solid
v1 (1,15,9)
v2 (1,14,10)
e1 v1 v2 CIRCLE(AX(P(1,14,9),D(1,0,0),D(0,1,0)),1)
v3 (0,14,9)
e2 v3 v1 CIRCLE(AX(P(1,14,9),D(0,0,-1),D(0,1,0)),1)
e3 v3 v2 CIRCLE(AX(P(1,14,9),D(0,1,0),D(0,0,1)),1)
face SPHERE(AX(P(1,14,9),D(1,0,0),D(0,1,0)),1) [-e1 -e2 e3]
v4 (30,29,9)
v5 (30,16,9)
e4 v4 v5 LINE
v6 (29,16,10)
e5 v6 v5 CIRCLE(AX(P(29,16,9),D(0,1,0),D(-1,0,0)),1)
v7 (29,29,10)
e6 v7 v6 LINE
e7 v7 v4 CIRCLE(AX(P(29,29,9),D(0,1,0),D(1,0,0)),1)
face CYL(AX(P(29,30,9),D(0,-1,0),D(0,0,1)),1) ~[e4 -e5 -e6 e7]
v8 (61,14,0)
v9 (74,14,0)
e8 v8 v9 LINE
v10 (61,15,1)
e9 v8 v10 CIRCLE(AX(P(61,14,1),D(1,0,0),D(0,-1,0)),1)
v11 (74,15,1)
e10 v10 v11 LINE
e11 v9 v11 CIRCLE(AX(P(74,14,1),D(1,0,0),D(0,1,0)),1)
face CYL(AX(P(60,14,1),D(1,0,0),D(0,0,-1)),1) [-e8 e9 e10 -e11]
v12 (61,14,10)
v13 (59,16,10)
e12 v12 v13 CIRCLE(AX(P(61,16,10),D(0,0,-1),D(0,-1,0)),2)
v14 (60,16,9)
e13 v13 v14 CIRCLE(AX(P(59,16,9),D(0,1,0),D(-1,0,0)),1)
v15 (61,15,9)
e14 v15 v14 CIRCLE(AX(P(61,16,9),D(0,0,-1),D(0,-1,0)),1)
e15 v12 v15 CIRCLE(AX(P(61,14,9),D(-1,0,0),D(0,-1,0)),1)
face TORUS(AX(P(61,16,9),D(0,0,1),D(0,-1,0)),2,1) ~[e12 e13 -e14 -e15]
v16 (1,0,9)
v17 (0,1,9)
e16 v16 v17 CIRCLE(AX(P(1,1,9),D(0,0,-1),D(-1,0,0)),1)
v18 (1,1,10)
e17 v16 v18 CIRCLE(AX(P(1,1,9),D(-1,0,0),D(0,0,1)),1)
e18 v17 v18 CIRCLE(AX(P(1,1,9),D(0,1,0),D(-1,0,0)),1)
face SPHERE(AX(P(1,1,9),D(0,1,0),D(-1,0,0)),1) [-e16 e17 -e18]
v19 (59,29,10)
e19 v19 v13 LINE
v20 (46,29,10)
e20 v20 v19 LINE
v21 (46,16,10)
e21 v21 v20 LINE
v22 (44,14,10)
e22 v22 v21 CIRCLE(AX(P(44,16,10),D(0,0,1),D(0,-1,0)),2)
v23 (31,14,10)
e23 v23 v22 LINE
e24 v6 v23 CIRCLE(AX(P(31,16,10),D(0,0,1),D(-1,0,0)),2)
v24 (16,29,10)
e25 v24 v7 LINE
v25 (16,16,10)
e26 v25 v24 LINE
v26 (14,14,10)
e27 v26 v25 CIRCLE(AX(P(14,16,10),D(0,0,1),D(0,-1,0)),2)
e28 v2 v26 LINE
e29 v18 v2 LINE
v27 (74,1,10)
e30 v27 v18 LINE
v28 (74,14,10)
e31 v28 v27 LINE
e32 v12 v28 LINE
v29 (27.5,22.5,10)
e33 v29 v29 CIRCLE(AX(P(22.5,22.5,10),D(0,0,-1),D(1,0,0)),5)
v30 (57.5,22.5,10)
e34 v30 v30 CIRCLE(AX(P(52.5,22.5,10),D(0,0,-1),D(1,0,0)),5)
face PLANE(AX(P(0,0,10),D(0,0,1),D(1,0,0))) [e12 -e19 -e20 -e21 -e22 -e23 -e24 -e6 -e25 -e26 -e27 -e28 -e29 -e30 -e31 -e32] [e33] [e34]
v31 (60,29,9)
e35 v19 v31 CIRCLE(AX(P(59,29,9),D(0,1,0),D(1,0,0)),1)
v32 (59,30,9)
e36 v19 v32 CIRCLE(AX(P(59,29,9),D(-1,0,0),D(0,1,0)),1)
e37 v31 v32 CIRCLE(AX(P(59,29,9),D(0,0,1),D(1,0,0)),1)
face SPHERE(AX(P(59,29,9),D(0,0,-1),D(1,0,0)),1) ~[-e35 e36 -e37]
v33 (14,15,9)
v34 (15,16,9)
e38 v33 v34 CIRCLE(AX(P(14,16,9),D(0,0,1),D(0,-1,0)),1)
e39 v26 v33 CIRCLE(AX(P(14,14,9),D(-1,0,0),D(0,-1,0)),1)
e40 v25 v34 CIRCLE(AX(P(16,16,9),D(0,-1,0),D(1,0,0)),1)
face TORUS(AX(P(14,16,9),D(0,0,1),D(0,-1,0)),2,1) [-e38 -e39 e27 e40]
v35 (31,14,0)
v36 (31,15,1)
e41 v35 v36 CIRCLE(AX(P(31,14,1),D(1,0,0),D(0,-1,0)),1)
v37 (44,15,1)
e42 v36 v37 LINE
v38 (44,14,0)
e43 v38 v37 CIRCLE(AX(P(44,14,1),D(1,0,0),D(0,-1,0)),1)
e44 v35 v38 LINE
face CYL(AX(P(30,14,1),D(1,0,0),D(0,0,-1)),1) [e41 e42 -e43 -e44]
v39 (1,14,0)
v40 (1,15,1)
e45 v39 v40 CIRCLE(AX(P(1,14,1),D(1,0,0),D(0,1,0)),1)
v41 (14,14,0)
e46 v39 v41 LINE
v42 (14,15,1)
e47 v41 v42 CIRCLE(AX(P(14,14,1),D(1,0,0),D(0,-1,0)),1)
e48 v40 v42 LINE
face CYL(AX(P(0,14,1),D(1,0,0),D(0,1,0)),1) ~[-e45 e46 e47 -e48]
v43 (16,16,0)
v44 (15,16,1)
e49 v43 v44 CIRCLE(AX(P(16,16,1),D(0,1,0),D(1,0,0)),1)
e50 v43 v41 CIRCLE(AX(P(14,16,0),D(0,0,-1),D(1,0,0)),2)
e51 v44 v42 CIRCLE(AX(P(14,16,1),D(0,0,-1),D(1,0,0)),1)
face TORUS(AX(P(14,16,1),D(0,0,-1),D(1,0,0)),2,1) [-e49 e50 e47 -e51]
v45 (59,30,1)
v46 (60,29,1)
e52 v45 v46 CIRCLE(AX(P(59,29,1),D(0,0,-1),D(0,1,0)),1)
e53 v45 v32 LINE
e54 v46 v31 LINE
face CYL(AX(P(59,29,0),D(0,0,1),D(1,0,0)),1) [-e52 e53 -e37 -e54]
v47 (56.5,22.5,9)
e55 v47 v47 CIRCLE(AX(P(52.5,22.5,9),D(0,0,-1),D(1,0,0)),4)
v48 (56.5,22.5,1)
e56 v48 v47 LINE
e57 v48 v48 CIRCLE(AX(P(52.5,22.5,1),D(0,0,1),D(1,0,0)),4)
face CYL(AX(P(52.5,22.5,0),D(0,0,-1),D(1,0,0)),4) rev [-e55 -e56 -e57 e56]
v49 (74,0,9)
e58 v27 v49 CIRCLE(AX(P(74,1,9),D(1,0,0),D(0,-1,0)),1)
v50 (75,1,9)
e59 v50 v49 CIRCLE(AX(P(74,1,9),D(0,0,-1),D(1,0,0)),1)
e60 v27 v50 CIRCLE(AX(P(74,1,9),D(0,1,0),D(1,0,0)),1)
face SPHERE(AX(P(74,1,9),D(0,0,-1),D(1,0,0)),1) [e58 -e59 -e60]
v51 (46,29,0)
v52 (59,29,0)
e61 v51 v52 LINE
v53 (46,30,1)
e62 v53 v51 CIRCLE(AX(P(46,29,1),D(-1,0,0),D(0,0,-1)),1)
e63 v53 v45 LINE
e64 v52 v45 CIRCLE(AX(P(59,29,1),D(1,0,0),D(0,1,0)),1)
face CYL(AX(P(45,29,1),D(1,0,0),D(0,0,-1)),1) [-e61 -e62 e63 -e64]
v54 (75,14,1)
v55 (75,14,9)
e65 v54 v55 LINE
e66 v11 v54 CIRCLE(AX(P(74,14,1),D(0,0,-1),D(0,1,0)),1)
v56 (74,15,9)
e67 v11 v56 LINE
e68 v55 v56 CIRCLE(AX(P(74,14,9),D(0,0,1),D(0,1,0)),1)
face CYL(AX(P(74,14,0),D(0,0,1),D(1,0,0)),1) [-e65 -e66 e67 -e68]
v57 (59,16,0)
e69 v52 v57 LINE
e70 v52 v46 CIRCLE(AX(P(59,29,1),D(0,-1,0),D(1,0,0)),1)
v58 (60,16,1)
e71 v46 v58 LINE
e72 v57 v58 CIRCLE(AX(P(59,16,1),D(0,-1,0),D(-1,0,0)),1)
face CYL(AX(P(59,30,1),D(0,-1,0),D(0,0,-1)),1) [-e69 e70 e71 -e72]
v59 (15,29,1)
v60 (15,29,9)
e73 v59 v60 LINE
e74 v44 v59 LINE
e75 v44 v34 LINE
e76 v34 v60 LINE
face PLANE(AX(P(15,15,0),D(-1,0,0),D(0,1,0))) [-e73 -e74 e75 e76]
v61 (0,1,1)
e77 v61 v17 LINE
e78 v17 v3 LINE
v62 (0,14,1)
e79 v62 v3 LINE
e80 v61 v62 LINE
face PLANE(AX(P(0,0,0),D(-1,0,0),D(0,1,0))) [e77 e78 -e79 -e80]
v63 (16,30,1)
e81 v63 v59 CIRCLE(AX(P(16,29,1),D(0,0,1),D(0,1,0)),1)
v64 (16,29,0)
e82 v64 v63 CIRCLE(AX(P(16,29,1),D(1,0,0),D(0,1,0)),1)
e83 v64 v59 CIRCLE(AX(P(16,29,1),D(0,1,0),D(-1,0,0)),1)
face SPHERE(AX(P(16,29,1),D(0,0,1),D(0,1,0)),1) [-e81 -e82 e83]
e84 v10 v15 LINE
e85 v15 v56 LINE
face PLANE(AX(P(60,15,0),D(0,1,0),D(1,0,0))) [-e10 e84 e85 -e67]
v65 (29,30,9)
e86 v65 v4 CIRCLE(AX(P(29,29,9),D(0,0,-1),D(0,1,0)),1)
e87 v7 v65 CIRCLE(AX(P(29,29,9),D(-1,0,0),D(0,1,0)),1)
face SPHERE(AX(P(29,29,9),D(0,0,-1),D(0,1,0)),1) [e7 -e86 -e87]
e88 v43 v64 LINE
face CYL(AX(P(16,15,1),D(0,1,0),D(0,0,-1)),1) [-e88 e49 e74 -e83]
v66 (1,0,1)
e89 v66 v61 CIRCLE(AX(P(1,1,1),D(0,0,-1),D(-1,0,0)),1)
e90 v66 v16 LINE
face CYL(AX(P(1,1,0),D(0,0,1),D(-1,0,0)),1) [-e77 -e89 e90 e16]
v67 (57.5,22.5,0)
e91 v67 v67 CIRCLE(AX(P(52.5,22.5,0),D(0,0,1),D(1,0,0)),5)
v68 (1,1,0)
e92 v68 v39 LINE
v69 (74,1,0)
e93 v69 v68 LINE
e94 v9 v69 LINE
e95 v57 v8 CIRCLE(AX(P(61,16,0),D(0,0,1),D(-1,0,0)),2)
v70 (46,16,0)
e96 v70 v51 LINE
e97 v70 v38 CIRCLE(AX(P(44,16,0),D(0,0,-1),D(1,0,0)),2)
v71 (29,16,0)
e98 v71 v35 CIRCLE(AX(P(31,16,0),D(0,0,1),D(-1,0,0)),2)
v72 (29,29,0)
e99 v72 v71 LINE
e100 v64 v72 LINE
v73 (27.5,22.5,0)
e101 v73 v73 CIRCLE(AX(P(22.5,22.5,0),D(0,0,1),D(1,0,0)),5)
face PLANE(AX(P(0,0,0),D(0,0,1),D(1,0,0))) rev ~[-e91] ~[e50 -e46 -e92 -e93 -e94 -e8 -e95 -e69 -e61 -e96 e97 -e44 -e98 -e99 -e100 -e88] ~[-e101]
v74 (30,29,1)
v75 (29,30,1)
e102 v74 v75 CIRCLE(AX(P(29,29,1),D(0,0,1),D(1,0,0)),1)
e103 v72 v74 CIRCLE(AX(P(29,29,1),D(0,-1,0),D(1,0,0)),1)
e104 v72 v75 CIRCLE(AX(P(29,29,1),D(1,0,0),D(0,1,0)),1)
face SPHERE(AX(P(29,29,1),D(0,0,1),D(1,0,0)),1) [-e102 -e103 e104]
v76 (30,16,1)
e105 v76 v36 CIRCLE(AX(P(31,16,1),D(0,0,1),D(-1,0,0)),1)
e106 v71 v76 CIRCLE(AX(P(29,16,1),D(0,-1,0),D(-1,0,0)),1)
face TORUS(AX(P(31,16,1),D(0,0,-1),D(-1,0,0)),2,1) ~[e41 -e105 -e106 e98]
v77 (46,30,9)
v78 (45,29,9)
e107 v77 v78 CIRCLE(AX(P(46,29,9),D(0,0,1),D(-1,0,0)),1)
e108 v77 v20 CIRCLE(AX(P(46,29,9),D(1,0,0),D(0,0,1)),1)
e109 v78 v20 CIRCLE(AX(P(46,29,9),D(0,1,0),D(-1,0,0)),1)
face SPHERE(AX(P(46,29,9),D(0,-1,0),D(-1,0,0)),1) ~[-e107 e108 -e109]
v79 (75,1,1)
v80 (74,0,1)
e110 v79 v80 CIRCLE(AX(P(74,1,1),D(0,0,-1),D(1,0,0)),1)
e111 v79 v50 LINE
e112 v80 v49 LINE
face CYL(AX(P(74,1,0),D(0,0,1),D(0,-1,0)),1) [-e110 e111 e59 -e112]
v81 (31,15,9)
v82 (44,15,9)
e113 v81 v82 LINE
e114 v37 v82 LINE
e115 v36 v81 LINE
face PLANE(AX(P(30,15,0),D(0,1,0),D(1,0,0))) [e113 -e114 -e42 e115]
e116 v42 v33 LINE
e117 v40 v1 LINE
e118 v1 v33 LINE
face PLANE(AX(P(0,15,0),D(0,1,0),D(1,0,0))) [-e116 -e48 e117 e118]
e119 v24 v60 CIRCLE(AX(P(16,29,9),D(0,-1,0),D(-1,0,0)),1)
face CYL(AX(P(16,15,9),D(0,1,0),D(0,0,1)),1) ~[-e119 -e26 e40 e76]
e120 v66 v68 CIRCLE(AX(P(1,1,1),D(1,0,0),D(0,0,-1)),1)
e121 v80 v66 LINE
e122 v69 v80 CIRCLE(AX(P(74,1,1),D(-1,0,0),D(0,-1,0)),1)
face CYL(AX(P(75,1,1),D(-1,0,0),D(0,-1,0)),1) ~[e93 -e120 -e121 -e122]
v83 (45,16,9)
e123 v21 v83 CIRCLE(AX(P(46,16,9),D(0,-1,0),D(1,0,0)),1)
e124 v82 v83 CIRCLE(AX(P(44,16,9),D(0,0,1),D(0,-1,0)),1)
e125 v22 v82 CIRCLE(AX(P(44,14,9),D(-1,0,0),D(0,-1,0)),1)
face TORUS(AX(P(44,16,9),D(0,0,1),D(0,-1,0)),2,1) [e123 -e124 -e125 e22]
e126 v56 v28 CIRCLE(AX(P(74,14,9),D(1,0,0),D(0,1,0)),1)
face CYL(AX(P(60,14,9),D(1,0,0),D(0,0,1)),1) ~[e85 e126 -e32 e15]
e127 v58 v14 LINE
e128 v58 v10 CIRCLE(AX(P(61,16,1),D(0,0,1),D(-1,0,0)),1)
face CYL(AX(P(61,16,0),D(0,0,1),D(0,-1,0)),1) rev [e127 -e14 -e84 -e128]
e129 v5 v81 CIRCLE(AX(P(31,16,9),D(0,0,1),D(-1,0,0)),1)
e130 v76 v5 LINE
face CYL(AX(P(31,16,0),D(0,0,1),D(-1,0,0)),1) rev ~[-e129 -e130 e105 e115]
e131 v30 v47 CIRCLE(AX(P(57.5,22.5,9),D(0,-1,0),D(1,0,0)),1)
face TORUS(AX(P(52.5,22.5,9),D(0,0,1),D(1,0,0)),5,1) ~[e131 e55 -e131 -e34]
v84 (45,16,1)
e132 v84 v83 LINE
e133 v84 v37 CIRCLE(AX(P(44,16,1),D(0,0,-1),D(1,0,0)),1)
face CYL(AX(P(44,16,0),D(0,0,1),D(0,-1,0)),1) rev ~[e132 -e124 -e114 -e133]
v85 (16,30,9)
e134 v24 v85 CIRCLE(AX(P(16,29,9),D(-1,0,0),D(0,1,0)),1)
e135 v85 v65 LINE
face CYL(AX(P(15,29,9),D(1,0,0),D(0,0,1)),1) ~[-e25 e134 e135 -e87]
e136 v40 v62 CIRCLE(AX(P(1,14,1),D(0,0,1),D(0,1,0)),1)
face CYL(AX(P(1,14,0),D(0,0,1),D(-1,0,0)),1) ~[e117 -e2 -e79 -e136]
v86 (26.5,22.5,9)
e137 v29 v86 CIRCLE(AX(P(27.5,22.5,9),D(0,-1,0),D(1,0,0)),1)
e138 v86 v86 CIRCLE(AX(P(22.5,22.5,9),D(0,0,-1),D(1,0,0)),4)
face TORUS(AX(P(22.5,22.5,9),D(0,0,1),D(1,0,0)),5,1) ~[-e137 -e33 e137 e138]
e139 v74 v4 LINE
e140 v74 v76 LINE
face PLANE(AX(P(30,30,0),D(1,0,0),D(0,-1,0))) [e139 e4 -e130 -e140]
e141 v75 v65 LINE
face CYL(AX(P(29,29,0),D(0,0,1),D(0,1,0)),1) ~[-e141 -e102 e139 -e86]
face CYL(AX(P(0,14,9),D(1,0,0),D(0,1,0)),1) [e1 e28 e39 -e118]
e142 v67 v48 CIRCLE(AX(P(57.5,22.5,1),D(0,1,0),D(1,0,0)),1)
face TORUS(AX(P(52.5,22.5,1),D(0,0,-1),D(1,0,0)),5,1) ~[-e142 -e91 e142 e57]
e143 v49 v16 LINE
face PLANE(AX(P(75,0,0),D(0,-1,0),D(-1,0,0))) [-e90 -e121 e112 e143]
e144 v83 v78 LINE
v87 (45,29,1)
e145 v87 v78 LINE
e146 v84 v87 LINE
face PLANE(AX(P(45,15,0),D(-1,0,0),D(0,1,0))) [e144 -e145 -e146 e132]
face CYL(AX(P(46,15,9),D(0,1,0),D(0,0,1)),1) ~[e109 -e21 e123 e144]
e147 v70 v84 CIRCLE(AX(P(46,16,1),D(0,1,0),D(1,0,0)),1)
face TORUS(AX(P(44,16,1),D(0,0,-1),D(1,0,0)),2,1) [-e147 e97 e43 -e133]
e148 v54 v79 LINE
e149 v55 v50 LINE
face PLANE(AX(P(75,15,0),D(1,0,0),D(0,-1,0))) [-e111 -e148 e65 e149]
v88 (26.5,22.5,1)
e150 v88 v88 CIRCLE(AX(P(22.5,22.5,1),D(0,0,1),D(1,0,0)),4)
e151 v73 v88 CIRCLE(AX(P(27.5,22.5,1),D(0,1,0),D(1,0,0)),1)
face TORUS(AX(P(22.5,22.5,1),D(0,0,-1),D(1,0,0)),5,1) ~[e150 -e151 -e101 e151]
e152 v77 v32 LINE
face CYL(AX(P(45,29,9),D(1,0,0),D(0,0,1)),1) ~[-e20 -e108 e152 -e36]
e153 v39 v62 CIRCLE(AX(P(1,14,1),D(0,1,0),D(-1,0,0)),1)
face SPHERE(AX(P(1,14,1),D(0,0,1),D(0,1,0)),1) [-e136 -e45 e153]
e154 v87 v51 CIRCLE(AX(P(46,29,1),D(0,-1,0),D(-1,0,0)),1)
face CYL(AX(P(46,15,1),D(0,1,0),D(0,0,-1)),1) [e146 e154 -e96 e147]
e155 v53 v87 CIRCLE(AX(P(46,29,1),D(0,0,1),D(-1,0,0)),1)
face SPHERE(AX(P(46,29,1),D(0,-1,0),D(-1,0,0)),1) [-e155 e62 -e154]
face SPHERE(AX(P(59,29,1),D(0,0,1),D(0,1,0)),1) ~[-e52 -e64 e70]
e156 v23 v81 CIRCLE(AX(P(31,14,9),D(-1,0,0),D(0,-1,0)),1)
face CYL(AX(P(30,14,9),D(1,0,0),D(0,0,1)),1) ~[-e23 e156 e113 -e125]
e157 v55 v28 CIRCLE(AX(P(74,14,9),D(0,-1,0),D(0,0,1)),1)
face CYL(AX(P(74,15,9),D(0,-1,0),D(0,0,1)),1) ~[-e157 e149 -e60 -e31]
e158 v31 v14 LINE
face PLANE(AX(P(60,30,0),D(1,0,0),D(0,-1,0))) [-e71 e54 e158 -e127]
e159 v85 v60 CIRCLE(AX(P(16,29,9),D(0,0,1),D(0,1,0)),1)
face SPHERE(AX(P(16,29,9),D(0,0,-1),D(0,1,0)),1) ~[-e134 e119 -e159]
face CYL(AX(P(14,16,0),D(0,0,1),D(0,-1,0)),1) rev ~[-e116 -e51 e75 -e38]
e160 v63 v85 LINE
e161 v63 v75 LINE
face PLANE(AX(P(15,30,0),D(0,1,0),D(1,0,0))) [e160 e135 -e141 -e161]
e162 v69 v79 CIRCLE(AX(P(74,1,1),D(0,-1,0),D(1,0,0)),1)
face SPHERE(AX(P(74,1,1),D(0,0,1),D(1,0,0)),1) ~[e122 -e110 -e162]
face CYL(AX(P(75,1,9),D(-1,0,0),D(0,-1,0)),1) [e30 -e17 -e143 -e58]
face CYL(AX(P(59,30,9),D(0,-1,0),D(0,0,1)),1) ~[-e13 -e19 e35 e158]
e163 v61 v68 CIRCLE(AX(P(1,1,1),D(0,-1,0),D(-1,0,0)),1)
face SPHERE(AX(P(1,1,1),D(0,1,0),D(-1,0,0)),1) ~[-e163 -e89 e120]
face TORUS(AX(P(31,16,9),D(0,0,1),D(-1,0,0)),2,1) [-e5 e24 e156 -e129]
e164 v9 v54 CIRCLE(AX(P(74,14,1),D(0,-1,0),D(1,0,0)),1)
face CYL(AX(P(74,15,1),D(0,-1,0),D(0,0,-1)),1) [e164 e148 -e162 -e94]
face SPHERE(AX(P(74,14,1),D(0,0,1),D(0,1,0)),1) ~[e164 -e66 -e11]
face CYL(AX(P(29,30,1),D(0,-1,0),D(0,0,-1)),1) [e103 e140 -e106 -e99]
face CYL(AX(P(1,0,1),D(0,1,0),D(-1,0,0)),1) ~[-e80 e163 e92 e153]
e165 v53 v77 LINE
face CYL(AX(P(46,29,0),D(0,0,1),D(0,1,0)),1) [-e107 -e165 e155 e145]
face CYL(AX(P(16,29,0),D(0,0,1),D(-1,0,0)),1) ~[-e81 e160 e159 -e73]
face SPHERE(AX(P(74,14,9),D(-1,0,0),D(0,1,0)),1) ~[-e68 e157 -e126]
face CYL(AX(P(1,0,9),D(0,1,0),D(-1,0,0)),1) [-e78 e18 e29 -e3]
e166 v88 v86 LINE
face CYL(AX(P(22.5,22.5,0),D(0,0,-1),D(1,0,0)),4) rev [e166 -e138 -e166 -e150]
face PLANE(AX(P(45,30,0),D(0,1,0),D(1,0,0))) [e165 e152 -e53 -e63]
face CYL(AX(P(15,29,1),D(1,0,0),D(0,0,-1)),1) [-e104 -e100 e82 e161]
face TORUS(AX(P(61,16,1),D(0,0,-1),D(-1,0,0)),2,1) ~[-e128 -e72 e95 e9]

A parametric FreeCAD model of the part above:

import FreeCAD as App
import Part
import Sketcher

V = App.Vector
Q = App.Units.Quantity

doc = App.newDocument("Part")
body = doc.addObject("PartDesign::Body", "Body")

# Sketch on XY plane
sketch1 = body.newObject("Sketcher::SketchObject", "Sketch")
sketch1.AttachmentSupport = (doc.getObject("XY_Plane"), [""])
sketch1.MapMode = "FlatFace"
sketch1.addGeometry(Part.LineSegment(V(0, 15, 0), V(0, 0, 0)), False)
sketch1.addGeometry(Part.LineSegment(V(0, 0, 0), V(75, 0, 0)), False)
sketch1.addGeometry(Part.LineSegment(V(75, 0, 0), V(75, 15, 0)), False)
sketch1.addGeometry(Part.LineSegment(V(75, 15, 0), V(60, 15, 0)), False)
sketch1.addGeometry(Part.LineSegment(V(60, 15, 0), V(60, 30, 0)), False)
sketch1.addGeometry(Part.LineSegment(V(60, 30, 0), V(45, 30, 0)), False)
sketch1.addGeometry(Part.LineSegment(V(45, 30, 0), V(45, 15, 0)), False)
sketch1.addGeometry(Part.LineSegment(V(45, 15, 0), V(30, 15, 0)), False)
sketch1.addGeometry(Part.LineSegment(V(30, 15, 0), V(30, 30, 0)), False)
sketch1.addGeometry(Part.LineSegment(V(30, 30, 0), V(15, 30, 0)), False)
sketch1.addGeometry(Part.LineSegment(V(15, 30, 0), V(15, 15, 0)), False)
sketch1.addGeometry(Part.LineSegment(V(15, 15, 0), V(0, 15, 0)), False)
sketch1.addConstraint(Sketcher.Constraint("Coincident", 0, 2, 1, 1))
sketch1.addConstraint(Sketcher.Constraint("Coincident", 1, 2, 2, 1))
sketch1.addConstraint(Sketcher.Constraint("Coincident", 2, 2, 3, 1))
sketch1.addConstraint(Sketcher.Constraint("Coincident", 3, 2, 4, 1))
sketch1.addConstraint(Sketcher.Constraint("Coincident", 4, 2, 5, 1))
sketch1.addConstraint(Sketcher.Constraint("Coincident", 5, 2, 6, 1))
sketch1.addConstraint(Sketcher.Constraint("Coincident", 6, 2, 7, 1))
sketch1.addConstraint(Sketcher.Constraint("Coincident", 7, 2, 8, 1))
sketch1.addConstraint(Sketcher.Constraint("Coincident", 8, 2, 9, 1))
sketch1.addConstraint(Sketcher.Constraint("Coincident", 9, 2, 10, 1))
sketch1.addConstraint(Sketcher.Constraint("Coincident", 10, 2, 11, 1))
sketch1.addConstraint(Sketcher.Constraint("Coincident", 11, 2, 0, 1))
sketch1.addConstraint(Sketcher.Constraint("Vertical", 0))
sketch1.addConstraint(Sketcher.Constraint("Horizontal", 1))
sketch1.addConstraint(Sketcher.Constraint("Vertical", 2))
sketch1.addConstraint(Sketcher.Constraint("Horizontal", 3))
sketch1.addConstraint(Sketcher.Constraint("Vertical", 4))
sketch1.addConstraint(Sketcher.Constraint("Horizontal", 5))
sketch1.addConstraint(Sketcher.Constraint("Vertical", 6))
sketch1.addConstraint(Sketcher.Constraint("Horizontal", 7))
sketch1.addConstraint(Sketcher.Constraint("Vertical", 8))
sketch1.addConstraint(Sketcher.Constraint("Horizontal", 9))
sketch1.addConstraint(Sketcher.Constraint("Vertical", 10))
sketch1.addConstraint(Sketcher.Constraint("Horizontal", 11))
sketch1.addConstraint(Sketcher.Constraint("Coincident", 0, 2, -1, 1))
sketch1.addConstraint(Sketcher.Constraint("Horizontal", 3, 2, 6, 2))
sketch1.addConstraint(Sketcher.Constraint("Horizontal", 5, 2, 8, 2))
sketch1.addConstraint(Sketcher.Constraint("Horizontal", 7, 2, 10, 2))
sketch1.addConstraint(Sketcher.Constraint("Equal", 3, 5))
sketch1.addConstraint(Sketcher.Constraint("Equal", 5, 7))
sketch1.addConstraint(Sketcher.Constraint("Equal", 7, 9))
sketch1.addConstraint(Sketcher.Constraint("Equal", 9, 11))
sketch1.addConstraint(Sketcher.Constraint("Equal", 11, 0))
sketch1.addConstraint(Sketcher.Constraint("Equal", 2, 4))
sketch1.addConstraint(Sketcher.Constraint("DistanceX", 1, 1, 1, 2, Q("75 mm")))
pad1 = body.newObject("PartDesign::Pad", "Pad")
pad1.Profile = sketch1
pad1.Length = 10

# Sketch on XY plane
sketch2 = body.newObject("Sketcher::SketchObject", "Sketch001")
sketch2.AttachmentSupport = (doc.getObject("XY_Plane"), [""])
sketch2.MapMode = "FlatFace"
sketch2.addGeometry(Part.Circle(V(22.5, 22.5, 0), V(0, 0, 1), 4), False)
sketch2.addGeometry(Part.Circle(V(52.5, 22.5, 0), V(0, 0, 1), 4), False)
sketch2.addConstraint(Sketcher.Constraint("Equal", 0, 1))
sketch2.addConstraint(Sketcher.Constraint("Horizontal", 0, 3, 1, 3))
sketch2.addConstraint(Sketcher.Constraint("Diameter", 0, Q("8 mm")))
sketch2.addConstraint(Sketcher.Constraint("DistanceX", 0, 3, 1, 3, Q("30 mm")))
sketch2.addConstraint(Sketcher.Constraint("DistanceX", -1, 1, 0, 3, Q("22.5 mm")))
sketch2.addConstraint(Sketcher.Constraint("DistanceY", -1, 1, 0, 3, Q("22.5 mm")))
pocket1 = body.newObject("PartDesign::Pocket", "Pocket")
pocket1.Profile = sketch2
pocket1.Length = 26
pocket1.Reversed = True
doc.recompute()

fillet = body.newObject("PartDesign::Fillet", "Fillet")
fillet.Base = (pocket1, ["Edge1"])
fillet.UseAllEdges = True
fillet.Radius = 1

doc.recompute()
